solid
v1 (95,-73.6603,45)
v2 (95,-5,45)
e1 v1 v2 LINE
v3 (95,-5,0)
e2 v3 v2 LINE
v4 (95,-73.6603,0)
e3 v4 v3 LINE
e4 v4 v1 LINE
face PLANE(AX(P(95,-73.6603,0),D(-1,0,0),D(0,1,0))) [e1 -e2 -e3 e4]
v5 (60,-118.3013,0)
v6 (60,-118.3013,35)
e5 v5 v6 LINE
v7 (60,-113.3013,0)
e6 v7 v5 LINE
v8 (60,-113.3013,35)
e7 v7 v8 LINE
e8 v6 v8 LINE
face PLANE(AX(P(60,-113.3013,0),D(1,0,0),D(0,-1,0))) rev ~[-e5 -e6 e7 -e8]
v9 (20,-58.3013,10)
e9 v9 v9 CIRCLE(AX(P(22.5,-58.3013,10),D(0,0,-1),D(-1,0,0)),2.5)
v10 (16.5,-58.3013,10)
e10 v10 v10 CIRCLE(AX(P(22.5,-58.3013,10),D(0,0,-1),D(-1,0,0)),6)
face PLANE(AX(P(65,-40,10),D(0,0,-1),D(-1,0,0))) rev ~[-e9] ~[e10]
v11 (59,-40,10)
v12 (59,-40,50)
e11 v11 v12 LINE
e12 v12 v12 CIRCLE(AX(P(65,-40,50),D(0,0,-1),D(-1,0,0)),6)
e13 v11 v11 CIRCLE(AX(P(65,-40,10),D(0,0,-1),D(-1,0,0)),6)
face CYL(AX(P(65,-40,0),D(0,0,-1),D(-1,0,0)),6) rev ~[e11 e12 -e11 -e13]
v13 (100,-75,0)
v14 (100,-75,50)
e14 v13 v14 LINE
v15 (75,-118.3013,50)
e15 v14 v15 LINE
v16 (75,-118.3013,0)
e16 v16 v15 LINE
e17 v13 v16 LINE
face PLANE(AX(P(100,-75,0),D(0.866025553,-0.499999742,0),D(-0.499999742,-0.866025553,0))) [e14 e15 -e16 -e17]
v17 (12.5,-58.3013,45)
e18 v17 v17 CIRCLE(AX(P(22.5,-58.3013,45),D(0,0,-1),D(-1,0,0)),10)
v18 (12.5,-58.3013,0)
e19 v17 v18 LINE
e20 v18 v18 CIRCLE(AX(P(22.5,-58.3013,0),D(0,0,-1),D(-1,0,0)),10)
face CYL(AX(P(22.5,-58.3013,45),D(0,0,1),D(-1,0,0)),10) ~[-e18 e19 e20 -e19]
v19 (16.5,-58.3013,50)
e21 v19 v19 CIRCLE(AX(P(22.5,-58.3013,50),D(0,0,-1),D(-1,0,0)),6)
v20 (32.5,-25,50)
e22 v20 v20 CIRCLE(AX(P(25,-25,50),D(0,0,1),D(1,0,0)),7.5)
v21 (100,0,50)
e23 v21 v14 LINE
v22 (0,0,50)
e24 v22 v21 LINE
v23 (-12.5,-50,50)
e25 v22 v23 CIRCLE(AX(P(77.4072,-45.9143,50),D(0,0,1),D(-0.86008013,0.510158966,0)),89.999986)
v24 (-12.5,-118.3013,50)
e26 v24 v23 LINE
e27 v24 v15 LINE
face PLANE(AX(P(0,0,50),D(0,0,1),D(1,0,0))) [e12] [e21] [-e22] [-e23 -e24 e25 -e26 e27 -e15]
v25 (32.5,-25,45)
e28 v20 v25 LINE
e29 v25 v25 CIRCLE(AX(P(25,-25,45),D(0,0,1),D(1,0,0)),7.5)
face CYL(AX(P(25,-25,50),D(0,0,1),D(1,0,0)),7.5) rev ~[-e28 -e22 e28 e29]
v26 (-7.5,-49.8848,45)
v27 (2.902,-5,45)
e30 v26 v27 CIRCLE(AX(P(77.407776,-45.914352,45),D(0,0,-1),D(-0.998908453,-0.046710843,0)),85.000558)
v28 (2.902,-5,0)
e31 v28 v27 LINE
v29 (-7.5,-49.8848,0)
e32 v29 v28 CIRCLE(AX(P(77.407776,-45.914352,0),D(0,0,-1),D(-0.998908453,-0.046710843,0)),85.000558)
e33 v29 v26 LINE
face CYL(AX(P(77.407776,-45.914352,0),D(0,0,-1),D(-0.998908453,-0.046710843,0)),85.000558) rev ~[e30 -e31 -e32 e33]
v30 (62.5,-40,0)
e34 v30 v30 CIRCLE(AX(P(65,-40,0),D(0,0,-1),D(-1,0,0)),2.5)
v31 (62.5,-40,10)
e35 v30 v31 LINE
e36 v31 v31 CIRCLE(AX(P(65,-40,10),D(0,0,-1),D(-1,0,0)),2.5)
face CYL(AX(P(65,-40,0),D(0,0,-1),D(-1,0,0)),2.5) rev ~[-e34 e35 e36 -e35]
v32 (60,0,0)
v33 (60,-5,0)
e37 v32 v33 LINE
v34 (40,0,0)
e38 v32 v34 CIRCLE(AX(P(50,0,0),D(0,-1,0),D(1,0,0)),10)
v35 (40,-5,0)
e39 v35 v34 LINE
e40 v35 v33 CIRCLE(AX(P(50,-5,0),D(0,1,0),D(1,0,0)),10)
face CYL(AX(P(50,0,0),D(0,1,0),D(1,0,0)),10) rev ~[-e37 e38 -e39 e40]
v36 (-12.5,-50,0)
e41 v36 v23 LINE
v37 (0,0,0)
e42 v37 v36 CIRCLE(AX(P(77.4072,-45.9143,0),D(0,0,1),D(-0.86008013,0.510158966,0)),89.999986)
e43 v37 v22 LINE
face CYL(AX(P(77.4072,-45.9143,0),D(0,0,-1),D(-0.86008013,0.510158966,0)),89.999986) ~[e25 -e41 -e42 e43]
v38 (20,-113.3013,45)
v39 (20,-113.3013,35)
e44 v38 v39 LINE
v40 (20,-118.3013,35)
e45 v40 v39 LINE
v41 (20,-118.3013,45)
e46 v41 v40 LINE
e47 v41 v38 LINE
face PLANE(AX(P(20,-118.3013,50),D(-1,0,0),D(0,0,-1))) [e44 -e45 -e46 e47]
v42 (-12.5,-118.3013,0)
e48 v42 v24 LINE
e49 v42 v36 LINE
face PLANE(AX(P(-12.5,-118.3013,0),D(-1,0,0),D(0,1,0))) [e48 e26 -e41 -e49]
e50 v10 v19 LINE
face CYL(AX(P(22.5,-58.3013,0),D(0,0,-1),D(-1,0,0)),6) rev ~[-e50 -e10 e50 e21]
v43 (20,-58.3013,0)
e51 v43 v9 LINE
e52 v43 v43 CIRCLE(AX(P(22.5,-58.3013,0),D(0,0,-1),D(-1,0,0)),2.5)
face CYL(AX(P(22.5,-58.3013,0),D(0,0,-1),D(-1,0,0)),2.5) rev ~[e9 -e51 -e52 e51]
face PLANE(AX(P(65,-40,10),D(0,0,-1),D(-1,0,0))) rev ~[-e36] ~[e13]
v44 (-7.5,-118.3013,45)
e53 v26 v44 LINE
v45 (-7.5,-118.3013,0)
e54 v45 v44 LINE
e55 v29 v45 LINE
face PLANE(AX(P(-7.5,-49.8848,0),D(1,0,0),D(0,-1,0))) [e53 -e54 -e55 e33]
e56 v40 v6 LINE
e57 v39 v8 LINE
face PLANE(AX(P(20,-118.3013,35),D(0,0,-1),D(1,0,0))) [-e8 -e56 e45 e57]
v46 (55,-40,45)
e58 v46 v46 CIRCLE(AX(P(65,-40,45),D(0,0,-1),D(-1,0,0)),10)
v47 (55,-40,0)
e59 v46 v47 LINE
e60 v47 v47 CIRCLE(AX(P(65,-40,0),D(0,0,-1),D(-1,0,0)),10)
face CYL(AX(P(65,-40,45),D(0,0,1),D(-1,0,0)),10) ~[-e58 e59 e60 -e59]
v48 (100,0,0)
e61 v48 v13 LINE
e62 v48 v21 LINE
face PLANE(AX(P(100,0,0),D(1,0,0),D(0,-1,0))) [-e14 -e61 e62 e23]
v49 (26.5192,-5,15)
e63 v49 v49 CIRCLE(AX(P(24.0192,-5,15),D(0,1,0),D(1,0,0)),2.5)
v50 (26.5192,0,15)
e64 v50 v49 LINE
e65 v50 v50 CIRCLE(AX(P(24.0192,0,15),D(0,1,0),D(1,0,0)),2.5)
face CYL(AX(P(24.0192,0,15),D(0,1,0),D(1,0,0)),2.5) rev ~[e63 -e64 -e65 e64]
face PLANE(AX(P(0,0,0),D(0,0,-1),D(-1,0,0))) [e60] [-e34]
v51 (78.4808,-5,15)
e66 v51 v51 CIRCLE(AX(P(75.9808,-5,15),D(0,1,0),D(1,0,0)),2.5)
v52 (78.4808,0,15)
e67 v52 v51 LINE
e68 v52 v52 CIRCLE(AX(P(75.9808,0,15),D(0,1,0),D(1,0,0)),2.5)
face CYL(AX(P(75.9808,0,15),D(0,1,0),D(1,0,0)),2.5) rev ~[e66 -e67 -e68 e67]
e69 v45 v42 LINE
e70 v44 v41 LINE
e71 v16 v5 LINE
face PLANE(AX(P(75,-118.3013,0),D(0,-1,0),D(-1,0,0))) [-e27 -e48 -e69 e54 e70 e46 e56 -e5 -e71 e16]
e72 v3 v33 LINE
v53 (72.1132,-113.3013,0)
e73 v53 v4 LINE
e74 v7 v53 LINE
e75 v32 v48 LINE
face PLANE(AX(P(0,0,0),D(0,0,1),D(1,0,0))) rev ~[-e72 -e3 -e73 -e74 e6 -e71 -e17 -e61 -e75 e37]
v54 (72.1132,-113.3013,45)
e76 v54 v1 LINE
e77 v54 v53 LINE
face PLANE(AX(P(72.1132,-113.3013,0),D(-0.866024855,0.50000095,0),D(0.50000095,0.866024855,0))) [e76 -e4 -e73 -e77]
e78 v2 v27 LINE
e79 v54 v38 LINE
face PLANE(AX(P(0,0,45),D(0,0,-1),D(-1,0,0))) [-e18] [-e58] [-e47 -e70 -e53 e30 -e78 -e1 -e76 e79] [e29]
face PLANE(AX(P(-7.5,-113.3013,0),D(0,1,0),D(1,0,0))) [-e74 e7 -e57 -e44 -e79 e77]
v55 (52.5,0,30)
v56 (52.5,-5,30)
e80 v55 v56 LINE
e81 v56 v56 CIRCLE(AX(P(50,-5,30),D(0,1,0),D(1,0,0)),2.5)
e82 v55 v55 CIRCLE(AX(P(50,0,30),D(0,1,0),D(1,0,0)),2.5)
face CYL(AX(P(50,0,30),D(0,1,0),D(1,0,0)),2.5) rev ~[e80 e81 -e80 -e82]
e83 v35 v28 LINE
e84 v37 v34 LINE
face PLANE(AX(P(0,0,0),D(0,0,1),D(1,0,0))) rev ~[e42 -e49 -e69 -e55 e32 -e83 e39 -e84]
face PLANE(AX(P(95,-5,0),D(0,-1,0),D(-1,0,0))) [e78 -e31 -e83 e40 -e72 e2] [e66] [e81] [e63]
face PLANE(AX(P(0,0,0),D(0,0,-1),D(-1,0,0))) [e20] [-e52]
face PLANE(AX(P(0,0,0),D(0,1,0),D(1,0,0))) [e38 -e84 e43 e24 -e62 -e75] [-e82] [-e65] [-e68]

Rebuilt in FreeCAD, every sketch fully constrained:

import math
import FreeCAD as App
import Part
import Sketcher
Q = App.Units.Quantity

doc = App.newDocument("Part")
body = doc.addObject("PartDesign::Body", "Body")

# Sketch on XY plane
sketch1 = doc.addObject("Sketcher::SketchObject", "Sketch")
body.addObject(sketch1)
sketch1.AttachmentSupport = (doc.XY_Plane, [""])
sketch1.MapMode = "FlatFace"
sketch1.addGeometry([
    Part.LineSegment(App.Vector(100, 0, 0), App.Vector(0, 0, 0)),  # 0
    Part.ArcOfCircle(Part.Circle(App.Vector(77, -46, 0), App.Vector(0, 0, 1), 90), math.radians(149), math.radians(183)),  # 1
    Part.LineSegment(App.Vector(-12, -50, 0), App.Vector(-12, -118, 0)),  # 2
    Part.LineSegment(App.Vector(-12, -118, 0), App.Vector(75, -118, 0)),  # 3
    Part.LineSegment(App.Vector(75, -118, 0), App.Vector(100, -75, 0)),  # 4
    Part.LineSegment(App.Vector(100, -75, 0), App.Vector(100, 0, 0)),  # 5
], False)
sketch1.addConstraint([
    Sketcher.Constraint("Coincident", 0, 2, 1, 1),
    Sketcher.Constraint("Coincident", 1, 2, 2, 1),
    Sketcher.Constraint("Coincident", 2, 2, 3, 1),
    Sketcher.Constraint("Coincident", 3, 2, 4, 1),
    Sketcher.Constraint("Coincident", 4, 2, 5, 1),
    Sketcher.Constraint("Coincident", 5, 2, 0, 1),
    Sketcher.Constraint("Horizontal", 0),
    Sketcher.Constraint("Vertical", 2),
    Sketcher.Constraint("Horizontal", 3),
    Sketcher.Constraint("Vertical", 5),
    Sketcher.Constraint("Coincident", 0, 2, -1, 1),
    Sketcher.Constraint("Radius", 1, 90.0),
    Sketcher.Constraint("DistanceX", 0, 2, 0, 1, 100.0),
    Sketcher.Constraint("DistanceY", 5, 1, 5, 2, 75.0),
    Sketcher.Constraint("Distance", 4, 50.0),
    Sketcher.Constraint("DistanceY", 1, 2, -1, 1, 50.0),
    Sketcher.Constraint("DistanceX", -1, 1, 3, 2, 75.0),
    Sketcher.Constraint("DistanceX", 1, 2, -1, 1, 12.5),
])
pad1 = doc.addObject("PartDesign::Pad", "Pad")
body.addObject(pad1)
pad1.Profile = sketch1
pad1.Length = 50

# Sketch on XY plane
sketch2 = doc.addObject("Sketcher::SketchObject", "Sketch001")
body.addObject(sketch2)
sketch2.AttachmentSupport = (doc.XY_Plane, [""])
sketch2.MapMode = "FlatFace"
sketch2.addGeometry([
    Part.LineSegment(App.Vector(95, -5, 0), App.Vector(95, -74, 0)),  # 0
    Part.LineSegment(App.Vector(95, -74, 0), App.Vector(72, -113, 0)),  # 1
    Part.LineSegment(App.Vector(72, -113, 0), App.Vector(-8, -113, 0)),  # 2
    Part.LineSegment(App.Vector(-8, -113, 0), App.Vector(-8, -50, 0)),  # 3
    Part.ArcOfCircle(Part.Circle(App.Vector(77, -46, 0), App.Vector(0, 0, 1), 85), math.radians(151), math.radians(183)),  # 4
    Part.LineSegment(App.Vector(3, -5, 0), App.Vector(95, -5, 0)),  # 5
], False)
sketch2.addConstraint([
    Sketcher.Constraint("Coincident", 0, 2, 1, 1),
    Sketcher.Constraint("Coincident", 1, 2, 2, 1),
    Sketcher.Constraint("Coincident", 2, 2, 3, 1),
    Sketcher.Constraint("Coincident", 3, 2, 4, 2),
    Sketcher.Constraint("Coincident", 4, 1, 5, 1),
    Sketcher.Constraint("Coincident", 5, 2, 0, 1),
    Sketcher.Constraint("Vertical", 0),
    Sketcher.Constraint("Horizontal", 2),
    Sketcher.Constraint("Vertical", 3),
    Sketcher.Constraint("Horizontal", 5),
    Sketcher.Constraint("DistanceY", 4, 1, -1, 1, 5.0),
    Sketcher.Constraint("Radius", 4, 85.0),
    Sketcher.Constraint("Angle", 1, Q("-120 deg")),
    Sketcher.Constraint("DistanceX", -1, 1, 0, 2, 95.0),
    Sketcher.Constraint("DistanceX", 2, 2, -1, 1, 7.5),
    Sketcher.Constraint("DistanceX", 5, 1, 5, 2, 92.098),
    Sketcher.Constraint("DistanceX", 2, 2, 2, 1, 79.6132),
    Sketcher.Constraint("DistanceY", 0, 2, 0, 1, 68.6603),
    Sketcher.Constraint("DistanceY", 3, 1, 3, 2, 63.4165),
])
pocket1 = doc.addObject("PartDesign::Pocket", "Pocket")
body.addObject(pocket1)
pocket1.Profile = sketch2
pocket1.Length = 45
pocket1.Reversed = True

# Sketch on XY plane
sketch3 = doc.addObject("Sketcher::SketchObject", "Sketch002")
body.addObject(sketch3)
sketch3.AttachmentSupport = (doc.XY_Plane, [""])
sketch3.MapMode = "FlatFace"
sketch3.addGeometry([
    Part.LineSegment(App.Vector(-8, -118, 0), App.Vector(-8, -113, 0)),
    Part.LineSegment(App.Vector(-8, -113, 0), App.Vector(60, -113, 0)),
    Part.LineSegment(App.Vector(60, -113, 0), App.Vector(60, -118, 0)),
    Part.LineSegment(App.Vector(60, -118, 0), App.Vector(-8, -118, 0)),
], False)
sketch3.addConstraint([
    Sketcher.Constraint("Coincident", 0, 2, 1, 1),
    Sketcher.Constraint("Coincident", 1, 2, 2, 1),
    Sketcher.Constraint("Coincident", 2, 2, 3, 1),
    Sketcher.Constraint("Coincident", 3, 2, 0, 1),
    Sketcher.Constraint("Vertical", 0),
    Sketcher.Constraint("Horizontal", 1),
    Sketcher.Constraint("Vertical", 2),
    Sketcher.Constraint("Horizontal", 3),
    Sketcher.Constraint("DistanceY", 0, 1, 0, 2, 5.0),
    Sketcher.Constraint("DistanceX", 1, 1, 1, 2, 67.5),
    Sketcher.Constraint("DistanceX", -1, 1, 1, 2, 60.0),
    Sketcher.Constraint("DistanceY", 0, 2, -1, 1, 113.3013),
])
pocket2 = doc.addObject("PartDesign::Pocket", "Pocket001")
body.addObject(pocket2)
pocket2.Profile = sketch3
pocket2.Length = 45
pocket2.Reversed = True

# Sketch on XZ plane
sketch4 = doc.addObject("Sketcher::SketchObject", "Sketch003")
body.addObject(sketch4)
sketch4.AttachmentSupport = (doc.XZ_Plane, [""])
sketch4.MapMode = "FlatFace"
sketch4.addGeometry(Part.Circle(App.Vector(50, 0, 0), App.Vector(0, 0, 1), 10), False)
sketch4.addConstraint([
    Sketcher.Constraint("PointOnObject", 0, 3, -1),
    Sketcher.Constraint("Diameter", 0, 20.0),
    Sketcher.Constraint("DistanceX", -1, 1, 0, 3, 50.0),
])
pocket3 = doc.addObject("PartDesign::Pocket", "Pocket002")
body.addObject(pocket3)
pocket3.Profile = sketch4
pocket3.Type = "ThroughAll"
pocket3.Reversed = True

# Sketch on XZ plane
sketch5 = doc.addObject("Sketcher::SketchObject", "Sketch004")
body.addObject(sketch5)
sketch5.AttachmentSupport = (doc.XZ_Plane, [""])
sketch5.MapMode = "FlatFace"
sketch5.addGeometry([
    Part.Circle(App.Vector(50, 30, 0), App.Vector(0, 0, 1), 2.5),
    Part.Circle(App.Vector(76, 15, 0), App.Vector(0, 0, 1), 2.5),
    Part.Circle(App.Vector(24, 15, 0), App.Vector(0, 0, 1), 2.5),
], False)
sketch5.addConstraint([
    Sketcher.Constraint("Equal", 0, 1),
    Sketcher.Constraint("Equal", 1, 2),
    Sketcher.Constraint("Horizontal", 1, 3, 2, 3),
    Sketcher.Constraint("Diameter", 0, 5.0),
    Sketcher.Constraint("DistanceX", -1, 1, 0, 3, 50.0),
    Sketcher.Constraint("DistanceY", -1, 1, 0, 3, 30.0),
    Sketcher.Constraint("DistanceY", -1, 1, 1, 3, 15.0),
    Sketcher.Constraint("DistanceX", -1, 1, 1, 3, 75.9808),
    Sketcher.Constraint("DistanceX", -1, 1, 2, 3, 24.0192),
])
pocket4 = doc.addObject("PartDesign::Pocket", "Pocket003")
body.addObject(pocket4)
pocket4.Profile = sketch5
pocket4.Length = 5
pocket4.Reversed = True

# Sketch on XY plane
sketch6 = doc.addObject("Sketcher::SketchObject", "Sketch005")
body.addObject(sketch6)
sketch6.AttachmentSupport = (doc.XY_Plane, [""])
sketch6.MapMode = "FlatFace"
sketch6.AttachmentOffset = App.Placement(App.Vector(0, 0, 50), App.Rotation())
sketch6.addGeometry(Part.Circle(App.Vector(25, -25, 0), App.Vector(0, 0, 1), 8), False)
sketch6.addConstraint([
    Sketcher.Constraint("Diameter", 0, 15.0),
    Sketcher.Constraint("DistanceX", -1, 1, 0, 3, 25.0),
    Sketcher.Constraint("DistanceY", 0, 3, -1, 1, 25.0),
])
pocket5 = doc.addObject("PartDesign::Pocket", "Pocket004")
body.addObject(pocket5)
pocket5.Profile = sketch6
pocket5.Length = 5

# Sketch on XZ plane
sketch7 = doc.addObject("Sketcher::SketchObject", "Sketch006")
body.addObject(sketch7)
sketch7.AttachmentSupport = (doc.XZ_Plane, [""])
sketch7.MapMode = "FlatFace"
sketch7.AttachmentOffset = App.Placement(App.Vector(0, 0, 118.3013), App.Rotation())
sketch7.addGeometry([
    Part.LineSegment(App.Vector(75, 35, 0), App.Vector(75, 50, 0)),
    Part.LineSegment(App.Vector(75, 50, 0), App.Vector(20, 50, 0)),
    Part.LineSegment(App.Vector(20, 50, 0), App.Vector(20, 35, 0)),
    Part.LineSegment(App.Vector(20, 35, 0), App.Vector(75, 35, 0)),
], False)
sketch7.addConstraint([
    Sketcher.Constraint("Coincident", 0, 2, 1, 1),
    Sketcher.Constraint("Coincident", 1, 2, 2, 1),
    Sketcher.Constraint("Coincident", 2, 2, 3, 1),
    Sketcher.Constraint("Coincident", 3, 2, 0, 1),
    Sketcher.Constraint("Vertical", 0),
    Sketcher.Constraint("Horizontal", 1),
    Sketcher.Constraint("Vertical", 2),
    Sketcher.Constraint("Horizontal", 3),
    Sketcher.Constraint("DistanceY", 0, 1, 0, 2, 15.0),
    Sketcher.Constraint("DistanceX", 1, 2, 1, 1, 55.0),
    Sketcher.Constraint("DistanceX", -1, 1, 0, 2, 75.0),
    Sketcher.Constraint("DistanceY", -1, 1, 0, 2, 50.0),
])
pad2 = doc.addObject("PartDesign::Pad", "Pad001")
body.addObject(pad2)
pad2.Profile = sketch7
pad2.Length = 5
pad2.Reversed = True

# Sketch on XY plane
sketch8 = doc.addObject("Sketcher::SketchObject", "Sketch007")
body.addObject(sketch8)
sketch8.AttachmentSupport = (doc.XY_Plane, [""])
sketch8.MapMode = "FlatFace"
sketch8.addGeometry([
    Part.Circle(App.Vector(65, -40, 0), App.Vector(0, 0, 1), 6),
    Part.Circle(App.Vector(22, -58, 0), App.Vector(0, 0, 1), 6),
], False)
sketch8.addConstraint([
    Sketcher.Constraint("Equal", 0, 1),
    Sketcher.Constraint("Diameter", 0, 12.0),
    Sketcher.Constraint("DistanceY", 0, 3, -1, 1, 40.0),
    Sketcher.Constraint("DistanceX", -1, 1, 0, 3, 65.0),
    Sketcher.Constraint("DistanceX", -1, 1, 1, 3, 22.5),
    Sketcher.Constraint("DistanceY", 1, 3, -1, 1, 58.3013),
])
pocket6 = doc.addObject("PartDesign::Pocket", "Pocket005")
body.addObject(pocket6)
pocket6.Profile = sketch8
pocket6.Type = "ThroughAll"
pocket6.Reversed = True

# Sketch on XY plane
sketch9 = doc.addObject("Sketcher::SketchObject", "Sketch008")
body.addObject(sketch9)
sketch9.AttachmentSupport = (doc.XY_Plane, [""])
sketch9.MapMode = "FlatFace"
sketch9.AttachmentOffset = App.Placement(App.Vector(0, 0, 45), App.Rotation())
sketch9.addGeometry([
    Part.Circle(App.Vector(22, -58, 0), App.Vector(0, 0, 1), 10),
    Part.Circle(App.Vector(22, -58, 0), App.Vector(0, 0, 1), 6),
    Part.Circle(App.Vector(65, -40, 0), App.Vector(0, 0, 1), 10),
    Part.Circle(App.Vector(65, -40, 0), App.Vector(0, 0, 1), 6),
], False)
sketch9.addConstraint([
    Sketcher.Constraint("Coincident", 1, 3, 0, 3),
    Sketcher.Constraint("Coincident", 3, 3, 2, 3),
    Sketcher.Constraint("Equal", 0, 2),
    Sketcher.Constraint("Equal", 1, 3),
    Sketcher.Constraint("Diameter", 0, 20.0),
    Sketcher.Constraint("Diameter", 1, 12.0),
    Sketcher.Constraint("DistanceX", -1, 1, 2, 3, 65.0),
    Sketcher.Constraint("DistanceY", 2, 3, -1, 1, 40.0),
    Sketcher.Constraint("DistanceX", -1, 1, 0, 3, 22.5),
    Sketcher.Constraint("DistanceY", 0, 3, -1, 1, 58.3013),
])
pad3 = doc.addObject("PartDesign::Pad", "Pad002")
body.addObject(pad3)
pad3.Profile = sketch9
pad3.Length = 45
pad3.Reversed = True

# Sketch on XY plane
sketch10 = doc.addObject("Sketcher::SketchObject", "Sketch009")
body.addObject(sketch10)
sketch10.AttachmentSupport = (doc.XY_Plane, [""])
sketch10.MapMode = "FlatFace"
sketch10.addGeometry([
    Part.Circle(App.Vector(22.5, -58.3, 0), App.Vector(0, 0, 1), 6),
    Part.Circle(App.Vector(22.5, -58.3, 0), App.Vector(0, 0, 1), 2.5),
    Part.Circle(App.Vector(65, -40, 0), App.Vector(0, 0, 1), 6),
    Part.Circle(App.Vector(65, -40, 0), App.Vector(0, 0, 1), 2.5),
], False)
sketch10.addConstraint([
    Sketcher.Constraint("Coincident", 1, 3, 0, 3),
    Sketcher.Constraint("Coincident", 3, 3, 2, 3),
    Sketcher.Constraint("Equal", 0, 2),
    Sketcher.Constraint("Equal", 1, 3),
    Sketcher.Constraint("Diameter", 1, 5.0),
    Sketcher.Constraint("Diameter", 0, 12.0),
    Sketcher.Constraint("DistanceX", -1, 1, 2, 3, 65.0),
    Sketcher.Constraint("DistanceY", 2, 3, -1, 1, 40.0),
    Sketcher.Constraint("DistanceX", -1, 1, 0, 3, 22.5),
    Sketcher.Constraint("DistanceY", 0, 3, -1, 1, 58.3013),
])
pad4 = doc.addObject("PartDesign::Pad", "Pad003")
body.addObject(pad4)
pad4.Profile = sketch10
pad4.Length = 10

doc.recompute()
